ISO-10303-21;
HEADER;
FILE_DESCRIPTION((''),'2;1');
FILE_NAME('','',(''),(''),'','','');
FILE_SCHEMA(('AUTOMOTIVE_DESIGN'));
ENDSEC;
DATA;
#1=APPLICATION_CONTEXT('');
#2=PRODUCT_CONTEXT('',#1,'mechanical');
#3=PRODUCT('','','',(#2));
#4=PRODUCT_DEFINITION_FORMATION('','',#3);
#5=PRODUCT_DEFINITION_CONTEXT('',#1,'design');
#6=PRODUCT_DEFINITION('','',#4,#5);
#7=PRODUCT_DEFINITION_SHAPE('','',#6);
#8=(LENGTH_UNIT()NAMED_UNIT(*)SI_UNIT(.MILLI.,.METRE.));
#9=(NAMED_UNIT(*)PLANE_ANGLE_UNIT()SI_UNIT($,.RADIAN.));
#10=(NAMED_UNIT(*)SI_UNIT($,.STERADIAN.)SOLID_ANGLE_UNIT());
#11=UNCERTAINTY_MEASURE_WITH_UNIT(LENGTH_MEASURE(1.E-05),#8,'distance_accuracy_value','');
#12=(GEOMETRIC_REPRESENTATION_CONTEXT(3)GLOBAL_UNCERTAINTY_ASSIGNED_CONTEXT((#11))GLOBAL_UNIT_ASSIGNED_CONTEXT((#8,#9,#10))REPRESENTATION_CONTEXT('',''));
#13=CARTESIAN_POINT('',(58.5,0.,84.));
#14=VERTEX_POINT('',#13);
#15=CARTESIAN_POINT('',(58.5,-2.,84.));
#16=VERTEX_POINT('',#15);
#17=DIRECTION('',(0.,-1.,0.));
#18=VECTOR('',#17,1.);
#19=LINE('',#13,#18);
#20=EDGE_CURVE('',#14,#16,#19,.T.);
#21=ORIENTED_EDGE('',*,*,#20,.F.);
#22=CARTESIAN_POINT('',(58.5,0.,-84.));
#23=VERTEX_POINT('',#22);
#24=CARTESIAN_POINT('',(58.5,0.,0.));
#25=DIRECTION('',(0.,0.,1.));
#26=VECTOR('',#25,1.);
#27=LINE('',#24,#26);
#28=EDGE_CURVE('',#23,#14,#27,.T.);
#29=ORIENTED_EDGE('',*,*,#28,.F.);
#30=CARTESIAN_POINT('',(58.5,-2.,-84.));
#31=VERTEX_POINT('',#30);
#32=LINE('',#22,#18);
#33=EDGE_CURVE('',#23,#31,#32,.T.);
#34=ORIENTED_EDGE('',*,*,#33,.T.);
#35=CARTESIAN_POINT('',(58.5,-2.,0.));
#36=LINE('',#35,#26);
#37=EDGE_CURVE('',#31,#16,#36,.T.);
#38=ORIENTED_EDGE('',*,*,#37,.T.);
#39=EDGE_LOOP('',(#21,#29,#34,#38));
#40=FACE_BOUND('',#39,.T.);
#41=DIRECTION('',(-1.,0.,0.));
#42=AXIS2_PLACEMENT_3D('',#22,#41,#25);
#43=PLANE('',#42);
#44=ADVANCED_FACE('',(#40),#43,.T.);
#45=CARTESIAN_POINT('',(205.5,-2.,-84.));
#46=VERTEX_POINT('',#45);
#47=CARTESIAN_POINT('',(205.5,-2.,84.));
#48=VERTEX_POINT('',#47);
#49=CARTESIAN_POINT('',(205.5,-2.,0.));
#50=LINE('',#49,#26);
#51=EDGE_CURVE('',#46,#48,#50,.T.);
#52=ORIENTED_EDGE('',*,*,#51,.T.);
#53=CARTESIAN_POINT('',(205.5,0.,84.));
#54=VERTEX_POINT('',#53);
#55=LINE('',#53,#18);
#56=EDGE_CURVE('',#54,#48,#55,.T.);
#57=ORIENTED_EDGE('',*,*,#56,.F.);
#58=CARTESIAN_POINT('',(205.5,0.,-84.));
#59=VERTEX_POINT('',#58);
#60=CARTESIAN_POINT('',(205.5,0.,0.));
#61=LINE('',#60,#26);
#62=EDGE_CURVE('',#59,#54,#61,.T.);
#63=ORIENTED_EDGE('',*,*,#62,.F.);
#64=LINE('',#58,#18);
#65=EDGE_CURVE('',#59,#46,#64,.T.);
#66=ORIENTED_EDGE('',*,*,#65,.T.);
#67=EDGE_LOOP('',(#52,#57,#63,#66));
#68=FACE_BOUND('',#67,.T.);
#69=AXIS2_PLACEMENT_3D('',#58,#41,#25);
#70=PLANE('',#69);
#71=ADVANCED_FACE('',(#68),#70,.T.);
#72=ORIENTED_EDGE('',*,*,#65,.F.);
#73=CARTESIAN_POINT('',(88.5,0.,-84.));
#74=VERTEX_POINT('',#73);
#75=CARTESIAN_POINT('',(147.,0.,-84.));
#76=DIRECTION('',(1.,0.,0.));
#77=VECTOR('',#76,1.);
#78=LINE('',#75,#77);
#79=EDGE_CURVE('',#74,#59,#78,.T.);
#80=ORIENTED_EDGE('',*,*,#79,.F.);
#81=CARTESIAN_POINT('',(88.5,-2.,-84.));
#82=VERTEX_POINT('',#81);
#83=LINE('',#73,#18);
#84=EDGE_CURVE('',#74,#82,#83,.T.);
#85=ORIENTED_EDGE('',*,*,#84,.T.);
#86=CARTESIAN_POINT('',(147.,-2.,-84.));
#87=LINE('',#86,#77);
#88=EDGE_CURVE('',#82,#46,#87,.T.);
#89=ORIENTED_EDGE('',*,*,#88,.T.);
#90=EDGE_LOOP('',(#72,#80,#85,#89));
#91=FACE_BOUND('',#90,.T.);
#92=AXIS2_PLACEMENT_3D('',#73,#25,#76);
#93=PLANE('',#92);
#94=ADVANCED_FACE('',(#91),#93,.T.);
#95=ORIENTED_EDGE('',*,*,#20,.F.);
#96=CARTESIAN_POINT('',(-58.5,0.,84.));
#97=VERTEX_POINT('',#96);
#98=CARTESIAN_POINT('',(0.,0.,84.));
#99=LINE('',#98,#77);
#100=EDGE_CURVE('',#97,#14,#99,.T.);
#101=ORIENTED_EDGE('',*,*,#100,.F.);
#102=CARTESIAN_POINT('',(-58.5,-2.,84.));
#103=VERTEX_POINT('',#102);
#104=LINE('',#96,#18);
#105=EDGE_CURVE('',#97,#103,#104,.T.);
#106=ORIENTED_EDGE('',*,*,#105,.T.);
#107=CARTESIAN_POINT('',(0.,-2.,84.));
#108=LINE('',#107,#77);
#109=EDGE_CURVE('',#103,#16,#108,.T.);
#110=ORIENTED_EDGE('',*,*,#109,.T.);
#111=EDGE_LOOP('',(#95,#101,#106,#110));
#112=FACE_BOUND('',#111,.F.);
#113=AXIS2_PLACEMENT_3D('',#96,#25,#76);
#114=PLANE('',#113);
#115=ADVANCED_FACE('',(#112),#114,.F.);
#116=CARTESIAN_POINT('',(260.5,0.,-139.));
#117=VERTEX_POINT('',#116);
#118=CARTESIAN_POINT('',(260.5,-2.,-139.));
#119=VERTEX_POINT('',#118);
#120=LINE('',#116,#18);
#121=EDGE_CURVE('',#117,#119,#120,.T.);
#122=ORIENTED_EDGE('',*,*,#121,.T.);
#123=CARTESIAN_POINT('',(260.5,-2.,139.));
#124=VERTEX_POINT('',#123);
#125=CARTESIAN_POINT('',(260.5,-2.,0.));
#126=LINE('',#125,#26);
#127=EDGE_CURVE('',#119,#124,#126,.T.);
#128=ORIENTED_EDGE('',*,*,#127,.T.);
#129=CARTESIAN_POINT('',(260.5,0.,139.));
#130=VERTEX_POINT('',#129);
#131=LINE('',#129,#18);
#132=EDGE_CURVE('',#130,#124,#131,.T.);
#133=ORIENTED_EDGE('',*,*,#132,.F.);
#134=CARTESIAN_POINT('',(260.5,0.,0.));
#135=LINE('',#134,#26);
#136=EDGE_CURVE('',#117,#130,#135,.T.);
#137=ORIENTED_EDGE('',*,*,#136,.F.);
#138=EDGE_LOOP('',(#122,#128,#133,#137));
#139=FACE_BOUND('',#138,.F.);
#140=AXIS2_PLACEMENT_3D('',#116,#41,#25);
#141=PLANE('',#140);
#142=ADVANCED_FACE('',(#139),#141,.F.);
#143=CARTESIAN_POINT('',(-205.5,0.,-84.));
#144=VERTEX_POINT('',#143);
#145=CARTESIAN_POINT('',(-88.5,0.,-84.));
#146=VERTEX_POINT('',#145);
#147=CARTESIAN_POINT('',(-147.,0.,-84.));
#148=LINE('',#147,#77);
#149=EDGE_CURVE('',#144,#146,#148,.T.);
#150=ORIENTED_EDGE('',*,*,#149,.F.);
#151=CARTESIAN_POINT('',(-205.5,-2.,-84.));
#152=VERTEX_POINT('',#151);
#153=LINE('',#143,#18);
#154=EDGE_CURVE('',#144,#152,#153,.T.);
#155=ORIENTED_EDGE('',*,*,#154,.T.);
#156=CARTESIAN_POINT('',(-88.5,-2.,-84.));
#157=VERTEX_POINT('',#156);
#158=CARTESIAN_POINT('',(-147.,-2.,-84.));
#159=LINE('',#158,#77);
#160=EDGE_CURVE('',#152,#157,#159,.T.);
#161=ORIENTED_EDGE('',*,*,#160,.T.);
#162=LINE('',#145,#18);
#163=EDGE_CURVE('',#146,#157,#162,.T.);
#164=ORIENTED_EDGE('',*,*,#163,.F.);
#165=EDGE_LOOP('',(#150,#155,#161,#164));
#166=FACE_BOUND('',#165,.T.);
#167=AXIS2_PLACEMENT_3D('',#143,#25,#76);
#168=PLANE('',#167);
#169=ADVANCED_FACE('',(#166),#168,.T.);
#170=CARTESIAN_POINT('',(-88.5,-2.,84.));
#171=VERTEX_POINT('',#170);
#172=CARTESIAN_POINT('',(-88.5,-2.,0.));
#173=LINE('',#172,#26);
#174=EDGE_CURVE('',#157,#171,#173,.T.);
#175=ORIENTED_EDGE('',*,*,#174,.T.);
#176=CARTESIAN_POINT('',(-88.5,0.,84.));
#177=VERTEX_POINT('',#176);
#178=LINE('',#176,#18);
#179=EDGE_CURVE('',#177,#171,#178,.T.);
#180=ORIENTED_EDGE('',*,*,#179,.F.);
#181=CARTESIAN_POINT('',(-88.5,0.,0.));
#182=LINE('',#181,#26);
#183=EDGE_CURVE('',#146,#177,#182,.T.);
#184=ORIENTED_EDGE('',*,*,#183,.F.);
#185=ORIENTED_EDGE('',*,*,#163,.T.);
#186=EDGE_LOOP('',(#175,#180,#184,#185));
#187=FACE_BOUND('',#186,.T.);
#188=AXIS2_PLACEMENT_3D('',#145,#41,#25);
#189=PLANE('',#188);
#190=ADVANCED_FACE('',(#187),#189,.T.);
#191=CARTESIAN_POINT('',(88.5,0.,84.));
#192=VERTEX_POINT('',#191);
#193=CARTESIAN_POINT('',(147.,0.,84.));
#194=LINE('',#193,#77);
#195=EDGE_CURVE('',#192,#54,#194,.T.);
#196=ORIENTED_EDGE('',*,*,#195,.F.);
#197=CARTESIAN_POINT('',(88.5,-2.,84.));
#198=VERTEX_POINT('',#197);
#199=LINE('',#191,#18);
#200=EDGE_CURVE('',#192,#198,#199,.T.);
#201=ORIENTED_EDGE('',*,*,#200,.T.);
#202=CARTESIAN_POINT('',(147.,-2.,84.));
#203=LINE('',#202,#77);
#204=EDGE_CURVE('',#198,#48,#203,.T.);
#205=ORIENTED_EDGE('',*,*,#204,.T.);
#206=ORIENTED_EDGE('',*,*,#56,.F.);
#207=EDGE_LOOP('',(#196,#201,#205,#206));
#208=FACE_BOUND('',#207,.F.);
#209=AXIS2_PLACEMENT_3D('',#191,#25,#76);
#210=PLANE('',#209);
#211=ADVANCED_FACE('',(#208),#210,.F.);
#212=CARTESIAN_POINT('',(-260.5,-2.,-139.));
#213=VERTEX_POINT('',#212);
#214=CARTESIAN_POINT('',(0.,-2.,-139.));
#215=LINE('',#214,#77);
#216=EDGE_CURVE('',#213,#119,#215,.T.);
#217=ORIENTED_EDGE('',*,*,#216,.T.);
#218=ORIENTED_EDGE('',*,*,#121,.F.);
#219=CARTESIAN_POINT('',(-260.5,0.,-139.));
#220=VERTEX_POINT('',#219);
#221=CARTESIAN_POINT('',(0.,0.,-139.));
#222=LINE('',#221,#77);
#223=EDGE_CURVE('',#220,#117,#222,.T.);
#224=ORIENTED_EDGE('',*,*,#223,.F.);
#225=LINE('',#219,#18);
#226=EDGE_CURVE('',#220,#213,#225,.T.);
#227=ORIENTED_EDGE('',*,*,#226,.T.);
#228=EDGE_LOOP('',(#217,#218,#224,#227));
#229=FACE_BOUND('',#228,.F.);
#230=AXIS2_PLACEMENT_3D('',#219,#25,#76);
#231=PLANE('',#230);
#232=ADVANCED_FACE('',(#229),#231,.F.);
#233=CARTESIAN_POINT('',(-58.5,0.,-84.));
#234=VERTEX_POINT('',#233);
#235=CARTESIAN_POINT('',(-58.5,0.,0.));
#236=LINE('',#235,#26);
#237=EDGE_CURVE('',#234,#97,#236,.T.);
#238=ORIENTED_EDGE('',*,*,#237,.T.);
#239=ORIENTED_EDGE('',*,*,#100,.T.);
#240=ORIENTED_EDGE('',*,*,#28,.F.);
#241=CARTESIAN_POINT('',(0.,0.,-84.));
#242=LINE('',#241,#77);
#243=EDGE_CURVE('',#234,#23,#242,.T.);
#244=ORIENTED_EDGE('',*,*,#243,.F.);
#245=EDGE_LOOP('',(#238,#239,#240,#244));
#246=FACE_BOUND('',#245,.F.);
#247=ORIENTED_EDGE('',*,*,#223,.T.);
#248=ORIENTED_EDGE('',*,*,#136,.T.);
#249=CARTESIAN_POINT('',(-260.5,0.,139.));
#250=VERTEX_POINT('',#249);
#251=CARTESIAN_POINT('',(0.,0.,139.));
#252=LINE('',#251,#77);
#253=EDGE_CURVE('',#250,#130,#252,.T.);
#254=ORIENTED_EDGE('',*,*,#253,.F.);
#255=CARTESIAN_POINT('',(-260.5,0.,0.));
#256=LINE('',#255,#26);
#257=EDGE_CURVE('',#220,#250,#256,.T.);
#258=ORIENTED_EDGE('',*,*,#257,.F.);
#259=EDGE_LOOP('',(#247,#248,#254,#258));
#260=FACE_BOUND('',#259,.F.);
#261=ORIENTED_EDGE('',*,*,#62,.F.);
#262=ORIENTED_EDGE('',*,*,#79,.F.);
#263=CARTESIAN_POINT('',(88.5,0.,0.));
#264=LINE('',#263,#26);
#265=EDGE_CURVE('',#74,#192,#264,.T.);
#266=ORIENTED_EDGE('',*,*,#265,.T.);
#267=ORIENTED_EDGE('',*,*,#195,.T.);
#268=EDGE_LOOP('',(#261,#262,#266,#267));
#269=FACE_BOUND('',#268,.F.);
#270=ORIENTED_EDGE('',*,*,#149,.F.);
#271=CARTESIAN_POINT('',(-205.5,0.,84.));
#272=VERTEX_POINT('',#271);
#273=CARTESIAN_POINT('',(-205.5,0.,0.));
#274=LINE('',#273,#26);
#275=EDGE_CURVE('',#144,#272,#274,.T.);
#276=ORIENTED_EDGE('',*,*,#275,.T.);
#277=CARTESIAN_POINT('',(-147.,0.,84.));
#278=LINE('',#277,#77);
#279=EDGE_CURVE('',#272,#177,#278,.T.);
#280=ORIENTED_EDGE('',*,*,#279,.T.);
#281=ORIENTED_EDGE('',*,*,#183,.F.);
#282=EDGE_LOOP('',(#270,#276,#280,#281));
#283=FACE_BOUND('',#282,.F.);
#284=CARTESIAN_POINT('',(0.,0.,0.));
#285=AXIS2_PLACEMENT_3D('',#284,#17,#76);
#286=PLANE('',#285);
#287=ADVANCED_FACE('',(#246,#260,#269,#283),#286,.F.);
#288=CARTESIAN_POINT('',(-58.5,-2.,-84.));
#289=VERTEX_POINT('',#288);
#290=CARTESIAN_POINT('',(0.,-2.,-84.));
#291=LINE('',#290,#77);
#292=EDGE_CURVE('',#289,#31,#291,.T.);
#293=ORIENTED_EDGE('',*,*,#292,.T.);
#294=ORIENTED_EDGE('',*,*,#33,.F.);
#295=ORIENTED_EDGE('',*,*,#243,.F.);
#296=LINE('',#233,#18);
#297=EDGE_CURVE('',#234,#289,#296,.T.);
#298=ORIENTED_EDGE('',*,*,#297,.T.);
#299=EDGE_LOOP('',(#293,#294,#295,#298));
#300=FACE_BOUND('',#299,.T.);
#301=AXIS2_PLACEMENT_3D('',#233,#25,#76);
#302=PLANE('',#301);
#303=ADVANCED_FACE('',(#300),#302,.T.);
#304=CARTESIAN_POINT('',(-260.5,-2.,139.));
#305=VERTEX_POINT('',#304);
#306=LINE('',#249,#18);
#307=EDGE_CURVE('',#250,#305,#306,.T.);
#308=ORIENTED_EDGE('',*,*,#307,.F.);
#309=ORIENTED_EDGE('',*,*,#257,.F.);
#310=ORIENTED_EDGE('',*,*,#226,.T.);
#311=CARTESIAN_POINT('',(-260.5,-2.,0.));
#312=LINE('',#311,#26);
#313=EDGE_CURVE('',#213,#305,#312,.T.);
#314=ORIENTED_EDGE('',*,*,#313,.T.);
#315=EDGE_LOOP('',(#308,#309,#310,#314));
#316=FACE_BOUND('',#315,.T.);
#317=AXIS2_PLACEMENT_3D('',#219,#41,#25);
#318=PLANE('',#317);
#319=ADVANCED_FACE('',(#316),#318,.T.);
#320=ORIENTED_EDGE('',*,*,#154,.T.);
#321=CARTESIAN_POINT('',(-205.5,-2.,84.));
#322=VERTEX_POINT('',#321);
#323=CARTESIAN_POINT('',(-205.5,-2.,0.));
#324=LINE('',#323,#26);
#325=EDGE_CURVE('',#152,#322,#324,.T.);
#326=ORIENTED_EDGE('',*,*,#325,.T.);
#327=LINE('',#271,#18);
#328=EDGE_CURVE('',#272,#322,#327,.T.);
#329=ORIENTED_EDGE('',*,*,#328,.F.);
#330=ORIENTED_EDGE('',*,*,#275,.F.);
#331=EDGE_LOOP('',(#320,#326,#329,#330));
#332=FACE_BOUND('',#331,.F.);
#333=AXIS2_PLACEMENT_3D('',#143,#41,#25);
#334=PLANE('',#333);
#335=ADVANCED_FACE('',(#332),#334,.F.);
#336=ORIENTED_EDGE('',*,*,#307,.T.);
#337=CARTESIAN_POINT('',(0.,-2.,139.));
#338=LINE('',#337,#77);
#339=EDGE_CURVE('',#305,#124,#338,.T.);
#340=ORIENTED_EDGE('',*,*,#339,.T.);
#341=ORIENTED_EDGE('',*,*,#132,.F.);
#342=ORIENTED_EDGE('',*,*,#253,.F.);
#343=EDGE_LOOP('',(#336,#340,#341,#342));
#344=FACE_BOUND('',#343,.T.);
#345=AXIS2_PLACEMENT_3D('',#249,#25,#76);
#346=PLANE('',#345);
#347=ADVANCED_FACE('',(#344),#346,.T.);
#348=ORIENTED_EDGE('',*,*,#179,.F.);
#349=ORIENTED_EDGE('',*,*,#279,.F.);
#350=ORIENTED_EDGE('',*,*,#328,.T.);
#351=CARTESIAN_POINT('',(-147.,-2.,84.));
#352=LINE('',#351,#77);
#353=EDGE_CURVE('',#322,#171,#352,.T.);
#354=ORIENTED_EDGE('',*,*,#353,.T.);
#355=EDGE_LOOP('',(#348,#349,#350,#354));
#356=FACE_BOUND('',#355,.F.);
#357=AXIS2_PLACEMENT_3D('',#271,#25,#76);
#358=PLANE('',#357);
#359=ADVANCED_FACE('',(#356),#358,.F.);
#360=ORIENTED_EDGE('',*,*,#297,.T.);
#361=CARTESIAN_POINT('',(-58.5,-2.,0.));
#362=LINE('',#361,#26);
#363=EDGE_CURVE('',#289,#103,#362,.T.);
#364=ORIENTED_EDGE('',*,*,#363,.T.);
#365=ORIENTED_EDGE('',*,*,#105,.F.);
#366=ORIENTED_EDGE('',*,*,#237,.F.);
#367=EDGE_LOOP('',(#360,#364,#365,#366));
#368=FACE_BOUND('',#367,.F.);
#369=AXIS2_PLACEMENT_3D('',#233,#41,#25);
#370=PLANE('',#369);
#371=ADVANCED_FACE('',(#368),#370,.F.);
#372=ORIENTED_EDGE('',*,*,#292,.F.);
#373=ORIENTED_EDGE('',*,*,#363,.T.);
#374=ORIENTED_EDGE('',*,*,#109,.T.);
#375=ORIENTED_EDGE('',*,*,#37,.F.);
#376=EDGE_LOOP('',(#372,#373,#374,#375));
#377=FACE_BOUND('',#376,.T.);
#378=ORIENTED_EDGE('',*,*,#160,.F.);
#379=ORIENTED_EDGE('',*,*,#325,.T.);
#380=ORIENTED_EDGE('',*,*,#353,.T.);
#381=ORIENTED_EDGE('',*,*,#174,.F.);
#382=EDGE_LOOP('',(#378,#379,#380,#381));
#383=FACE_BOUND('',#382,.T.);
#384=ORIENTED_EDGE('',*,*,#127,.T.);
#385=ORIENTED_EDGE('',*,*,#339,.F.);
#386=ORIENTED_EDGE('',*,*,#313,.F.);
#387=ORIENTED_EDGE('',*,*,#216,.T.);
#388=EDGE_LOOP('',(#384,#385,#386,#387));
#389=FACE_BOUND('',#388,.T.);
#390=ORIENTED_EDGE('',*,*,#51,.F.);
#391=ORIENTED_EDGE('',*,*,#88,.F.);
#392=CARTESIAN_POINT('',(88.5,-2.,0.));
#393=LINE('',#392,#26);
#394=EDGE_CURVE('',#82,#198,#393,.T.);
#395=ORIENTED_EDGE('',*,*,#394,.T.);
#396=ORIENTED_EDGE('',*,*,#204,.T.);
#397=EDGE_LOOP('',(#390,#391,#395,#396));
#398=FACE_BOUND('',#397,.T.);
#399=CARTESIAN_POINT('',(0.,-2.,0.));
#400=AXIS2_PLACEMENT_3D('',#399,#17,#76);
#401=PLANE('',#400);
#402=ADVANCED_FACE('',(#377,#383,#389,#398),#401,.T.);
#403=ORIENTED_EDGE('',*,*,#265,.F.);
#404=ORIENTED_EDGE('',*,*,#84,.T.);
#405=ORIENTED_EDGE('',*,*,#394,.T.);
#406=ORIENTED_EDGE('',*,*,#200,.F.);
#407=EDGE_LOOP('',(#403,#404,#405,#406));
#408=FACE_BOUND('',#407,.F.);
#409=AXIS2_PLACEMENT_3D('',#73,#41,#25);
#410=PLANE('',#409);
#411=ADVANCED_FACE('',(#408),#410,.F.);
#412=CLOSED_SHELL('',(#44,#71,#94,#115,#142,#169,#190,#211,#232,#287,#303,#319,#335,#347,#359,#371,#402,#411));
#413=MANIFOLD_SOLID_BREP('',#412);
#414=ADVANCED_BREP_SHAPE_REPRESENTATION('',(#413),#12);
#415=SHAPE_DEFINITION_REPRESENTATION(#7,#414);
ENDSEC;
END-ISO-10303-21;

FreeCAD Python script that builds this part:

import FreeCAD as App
import Part
import Sketcher
from FreeCAD import Vector


def add_polygon(sketch, points):
    """Adds a closed chain of lines whose ends are joined by coincident constraints."""
    first, n = sketch.GeometryCount, len(points)
    for a, b in zip(points, points[1:] + points[:1]):
        sketch.addGeometry(Part.LineSegment(App.Vector(*a, 0), App.Vector(*b, 0)), False)
    for i in range(n):
        sketch.addConstraint(Sketcher.Constraint("Coincident", first + i, 2, first + (i + 1) % n, 1))

doc = App.newDocument("Part")
body = doc.addObject("PartDesign::Body", "Body")

# Sketch on XZ plane
sketch1 = body.newObject("Sketcher::SketchObject", "Sketch")
sketch1.AttachmentSupport = (doc.getObject("XZ_Plane"), [""])
sketch1.MapMode = "FlatFace"
add_polygon(sketch1, [(-260, 139), (-260, -139), (260, -139), (260, 139)])  # lines 0-3
add_polygon(sketch1, [(-88, -84), (-206, -84), (-206, 84), (-88, 84)])  # lines 4-7
add_polygon(sketch1, [(58, -84), (-58, -84), (-58, 84), (58, 84)])  # lines 8-11
add_polygon(sketch1, [(206, -84), (88, -84), (88, 84), (206, 84)])  # lines 12-15
sketch1.addConstraint([
    Sketcher.Constraint("Vertical", 0),
    Sketcher.Constraint("Horizontal", 1),
    Sketcher.Constraint("Vertical", 2),
    Sketcher.Constraint("Horizontal", 3),
    Sketcher.Constraint("Horizontal", 4),
    Sketcher.Constraint("Vertical", 5),
    Sketcher.Constraint("Horizontal", 6),
    Sketcher.Constraint("Vertical", 7),
    Sketcher.Constraint("Horizontal", 8),
    Sketcher.Constraint("Vertical", 9),
    Sketcher.Constraint("Horizontal", 10),
    Sketcher.Constraint("Vertical", 11),
    Sketcher.Constraint("Horizontal", 12),
    Sketcher.Constraint("Vertical", 13),
    Sketcher.Constraint("Horizontal", 14),
    Sketcher.Constraint("Vertical", 15),
    Sketcher.Constraint("Symmetric", 0, 2, 2, 2, -1, 1),
    Sketcher.Constraint("Symmetric", 8, 2, 10, 2, -1, 1),
    Sketcher.Constraint("Symmetric", 6, 2, 12, 2, -1, 1),
    Sketcher.Constraint("Symmetric", 4, 2, 14, 2, -1, 1),
    Sketcher.Constraint("Horizontal", 7, 2, 8, 2),
    Sketcher.Constraint("Horizontal", 6, 2, 9, 2),
    Sketcher.Constraint("Equal", 6, 8),
    Sketcher.Constraint("DistanceX", 1, 1, 1, 2, 521.0),
    Sketcher.Constraint("DistanceX", 4, 2, 4, 1, 117.0),
    Sketcher.Constraint("DistanceY", 0, 2, 0, 1, 278.0),
    Sketcher.Constraint("DistanceY", 5, 1, 5, 2, 168.0),
    Sketcher.Constraint("DistanceX", 0, 2, 4, 2, 55.0),
])
pad1 = body.newObject("PartDesign::Pad", "Pad")
pad1.Profile = sketch1
pad1.Length = 2

doc.recompute()
